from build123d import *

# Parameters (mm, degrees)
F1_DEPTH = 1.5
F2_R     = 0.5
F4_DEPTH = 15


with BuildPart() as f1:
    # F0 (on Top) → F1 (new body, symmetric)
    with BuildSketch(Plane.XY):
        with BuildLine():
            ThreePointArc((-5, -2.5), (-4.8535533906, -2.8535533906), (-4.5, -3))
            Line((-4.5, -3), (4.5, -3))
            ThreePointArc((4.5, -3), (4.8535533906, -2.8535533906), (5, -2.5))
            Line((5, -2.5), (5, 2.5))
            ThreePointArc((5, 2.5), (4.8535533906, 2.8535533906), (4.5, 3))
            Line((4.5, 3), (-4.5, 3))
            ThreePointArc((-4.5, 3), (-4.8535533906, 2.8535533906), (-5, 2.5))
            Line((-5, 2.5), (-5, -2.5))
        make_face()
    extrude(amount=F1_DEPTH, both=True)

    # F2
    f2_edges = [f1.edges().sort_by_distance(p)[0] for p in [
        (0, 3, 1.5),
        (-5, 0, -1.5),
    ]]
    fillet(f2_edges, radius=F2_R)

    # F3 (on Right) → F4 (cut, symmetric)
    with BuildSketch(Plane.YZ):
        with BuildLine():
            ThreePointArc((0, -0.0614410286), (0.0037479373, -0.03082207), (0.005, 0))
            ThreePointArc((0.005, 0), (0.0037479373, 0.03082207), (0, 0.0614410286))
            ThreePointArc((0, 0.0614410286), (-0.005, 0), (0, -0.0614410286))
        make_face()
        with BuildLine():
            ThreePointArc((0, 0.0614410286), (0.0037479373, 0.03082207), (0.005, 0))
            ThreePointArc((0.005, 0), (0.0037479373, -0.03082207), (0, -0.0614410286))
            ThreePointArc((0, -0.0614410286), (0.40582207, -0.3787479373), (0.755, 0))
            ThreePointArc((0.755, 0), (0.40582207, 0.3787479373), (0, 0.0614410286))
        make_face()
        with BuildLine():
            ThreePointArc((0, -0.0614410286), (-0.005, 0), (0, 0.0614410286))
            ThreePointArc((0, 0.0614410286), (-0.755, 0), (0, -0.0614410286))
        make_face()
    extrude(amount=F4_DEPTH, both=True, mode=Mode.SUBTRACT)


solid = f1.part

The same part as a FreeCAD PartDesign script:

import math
import FreeCAD as App
import Part
import Sketcher
from FreeCAD import Vector


def edges_at(feature, points):
    """Names of the edges that pass closest to the given points."""
    edges = feature.Shape.Edges
    near = lambda p: min(range(len(edges)), key=lambda i: edges[i].distToShape(Part.Vertex(*p))[0])
    return sorted({f"Edge{near(p) + 1}" for p in points})

doc = App.newDocument("Part")
body = doc.addObject("PartDesign::Body", "Body")

# Sketch on XY plane
sketch1 = body.newObject("Sketcher::SketchObject", "Sketch")
sketch1.AttachmentSupport = (doc.getObject("XY_Plane"), [""])
sketch1.MapMode = "FlatFace"
sketch1.addGeometry(Part.ArcOfCircle(Part.Circle(Vector(-4.5, -2.5, 0), Vector(0, 0, 1), 0.5), math.radians(180), math.radians(270)), False)
sketch1.addGeometry(Part.LineSegment(Vector(-4.5, -3, 0), Vector(4.5, -3, 0)), False)
sketch1.addGeometry(Part.ArcOfCircle(Part.Circle(Vector(4.5, -2.5, 0), Vector(0, 0, 1), 0.5), math.radians(-90), math.radians(0)), False)
sketch1.addGeometry(Part.LineSegment(Vector(5, -2.5, 0), Vector(5, 2.5, 0)), False)
sketch1.addGeometry(Part.ArcOfCircle(Part.Circle(Vector(4.5, 2.5, 0), Vector(0, 0, 1), 0.5), math.radians(0), math.radians(90)), False)
sketch1.addGeometry(Part.LineSegment(Vector(4.5, 3, 0), Vector(-4.5, 3, 0)), False)
sketch1.addGeometry(Part.ArcOfCircle(Part.Circle(Vector(-4.5, 2.5, 0), Vector(0, 0, 1), 0.5), math.radians(90), math.radians(180)), False)
sketch1.addGeometry(Part.LineSegment(Vector(-5, 2.5, 0), Vector(-5, -2.5, 0)), False)
sketch1.addConstraint(Sketcher.Constraint("Tangent", 0, 2, 1, 1))
sketch1.addConstraint(Sketcher.Constraint("Tangent", 1, 2, 2, 1))
sketch1.addConstraint(Sketcher.Constraint("Tangent", 2, 2, 3, 1))
sketch1.addConstraint(Sketcher.Constraint("Tangent", 3, 2, 4, 1))
sketch1.addConstraint(Sketcher.Constraint("Tangent", 4, 2, 5, 1))
sketch1.addConstraint(Sketcher.Constraint("Tangent", 5, 2, 6, 1))
sketch1.addConstraint(Sketcher.Constraint("Tangent", 6, 2, 7, 1))
sketch1.addConstraint(Sketcher.Constraint("Tangent", 7, 2, 0, 1))
sketch1.addConstraint(Sketcher.Constraint("Horizontal", 1))
sketch1.addConstraint(Sketcher.Constraint("Vertical", 3))
sketch1.addConstraint(Sketcher.Constraint("Horizontal", 5))
sketch1.addConstraint(Sketcher.Constraint("Vertical", 7))
sketch1.addConstraint(Sketcher.Constraint("Equal", 0, 2))
sketch1.addConstraint(Sketcher.Constraint("Equal", 2, 4))
sketch1.addConstraint(Sketcher.Constraint("Equal", 4, 6))
sketch1.addConstraint(Sketcher.Constraint("Symmetric", 0, 3, 4, 3, -1, 1))
sketch1.addConstraint(Sketcher.Constraint("Radius", 0, 0.5))
sketch1.addConstraint(Sketcher.Constraint("DistanceX", 1, 1, 1, 2, 9.0))
sketch1.addConstraint(Sketcher.Constraint("DistanceY", 3, 1, 3, 2, 5.0))
pad1 = body.newObject("PartDesign::Pad", "Pad")
pad1.Profile = sketch1
pad1.Length = 3
pad1.Midplane = True
doc.recompute()

fillet = body.newObject("PartDesign::Fillet", "Fillet")
fillet.Base = (pad1, edges_at(pad1, [(0, 3, 1.5), (-5, 0, -1.5)]))
fillet.Radius = 0.5

# Sketch on YZ plane
sketch2 = body.newObject("Sketcher::SketchObject", "Sketch001")
sketch2.AttachmentSupport = (doc.getObject("YZ_Plane"), [""])
sketch2.MapMode = "FlatFace"
sketch2.addGeometry(Part.ArcOfCircle(Part.Circle(Vector(0.38, 0, 0), Vector(0, 0, 1), 0.38), math.radians(-171), math.radians(0)), False)
sketch2.addGeometry(Part.ArcOfCircle(Part.Circle(Vector(0.38, 0, 0), Vector(0, 0, 1), 0.38), math.radians(0), math.radians(171)), False)
sketch2.addGeometry(Part.ArcOfCircle(Part.Circle(Vector(-0.38, 0, 0), Vector(0, 0, 1), 0.38), math.radians(9), math.radians(351)), False)
sketch2.addConstraint(Sketcher.Constraint("Tangent", 0, 2, 1, 1))
sketch2.addConstraint(Sketcher.Constraint("Coincident", 1, 2, 2, 1))
sketch2.addConstraint(Sketcher.Constraint("Coincident", 2, 2, 0, 1))
sketch2.addConstraint(Sketcher.Constraint("Equal", 0, 1))
sketch2.addConstraint(Sketcher.Constraint("Equal", 1, 2))
sketch2.addConstraint(Sketcher.Constraint("Symmetric", 0, 3, 2, 3, -1, 1))
sketch2.addConstraint(Sketcher.Constraint("PointOnObject", 0, 3, -1))
sketch2.addConstraint(Sketcher.Constraint("PointOnObject", 0, 2, -1))
sketch2.addConstraint(Sketcher.Constraint("Radius", 0, 0.38))
sketch2.addConstraint(Sketcher.Constraint("DistanceX", 2, 3, 0, 3, 0.75))
pocket1 = body.newObject("PartDesign::Pocket", "Pocket")
pocket1.Profile = sketch2
pocket1.Length = 30
pocket1.Midplane = True

doc.recompute()
